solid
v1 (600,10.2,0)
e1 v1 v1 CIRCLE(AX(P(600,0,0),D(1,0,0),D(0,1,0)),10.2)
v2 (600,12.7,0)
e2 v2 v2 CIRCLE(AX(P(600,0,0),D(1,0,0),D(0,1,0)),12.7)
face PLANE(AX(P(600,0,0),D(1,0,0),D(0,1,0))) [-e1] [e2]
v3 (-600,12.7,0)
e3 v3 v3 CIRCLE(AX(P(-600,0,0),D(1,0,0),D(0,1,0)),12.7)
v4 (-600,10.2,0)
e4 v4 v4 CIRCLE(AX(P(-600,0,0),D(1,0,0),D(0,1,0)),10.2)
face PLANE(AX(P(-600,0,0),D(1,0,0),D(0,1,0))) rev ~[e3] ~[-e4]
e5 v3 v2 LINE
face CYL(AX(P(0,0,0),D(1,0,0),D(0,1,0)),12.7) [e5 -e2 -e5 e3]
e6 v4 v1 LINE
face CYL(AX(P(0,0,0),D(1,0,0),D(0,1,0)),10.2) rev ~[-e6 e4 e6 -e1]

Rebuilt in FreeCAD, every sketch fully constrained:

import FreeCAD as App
import Part
import Sketcher

V = App.Vector


def faces_at(feature, points):
    """Names of the faces that lie closest to the given points."""
    faces = feature.Shape.Faces
    near = lambda p: min(range(len(faces)), key=lambda i: faces[i].distToShape(Part.Vertex(*p))[0])
    return sorted({f"Face{near(p) + 1}" for p in points})

doc = App.newDocument("Part")
body = doc.addObject("PartDesign::Body", "Body")

sketch1 = body.newObject("Sketcher::SketchObject", "Sketch")
sketch1.AttachmentSupport = (doc.getObject("YZ_Plane"), [""])
sketch1.MapMode = "FlatFace"
sketch1.addGeometry(Part.Circle(V(0, 0, 0), V(0, 0, 1), 12.7), False)
sketch1.addConstraint([
    Sketcher.Constraint("Coincident", 0, 3, -1, 1),
    Sketcher.Constraint("Diameter", 0, 25.4),
])
pad1 = body.newObject("PartDesign::Pad", "Pad")
pad1.Profile = sketch1
pad1.Length = 1200
pad1.Midplane = True
doc.recompute()

thickness = body.newObject("PartDesign::Thickness", "Thickness")
thickness.Base = (pad1, faces_at(pad1, [(600, 0, 0), (-600, 0, 0)]))
thickness.Value = 2.5
thickness.Reversed = True
thickness.Join = "Arc"

doc.recompute()
